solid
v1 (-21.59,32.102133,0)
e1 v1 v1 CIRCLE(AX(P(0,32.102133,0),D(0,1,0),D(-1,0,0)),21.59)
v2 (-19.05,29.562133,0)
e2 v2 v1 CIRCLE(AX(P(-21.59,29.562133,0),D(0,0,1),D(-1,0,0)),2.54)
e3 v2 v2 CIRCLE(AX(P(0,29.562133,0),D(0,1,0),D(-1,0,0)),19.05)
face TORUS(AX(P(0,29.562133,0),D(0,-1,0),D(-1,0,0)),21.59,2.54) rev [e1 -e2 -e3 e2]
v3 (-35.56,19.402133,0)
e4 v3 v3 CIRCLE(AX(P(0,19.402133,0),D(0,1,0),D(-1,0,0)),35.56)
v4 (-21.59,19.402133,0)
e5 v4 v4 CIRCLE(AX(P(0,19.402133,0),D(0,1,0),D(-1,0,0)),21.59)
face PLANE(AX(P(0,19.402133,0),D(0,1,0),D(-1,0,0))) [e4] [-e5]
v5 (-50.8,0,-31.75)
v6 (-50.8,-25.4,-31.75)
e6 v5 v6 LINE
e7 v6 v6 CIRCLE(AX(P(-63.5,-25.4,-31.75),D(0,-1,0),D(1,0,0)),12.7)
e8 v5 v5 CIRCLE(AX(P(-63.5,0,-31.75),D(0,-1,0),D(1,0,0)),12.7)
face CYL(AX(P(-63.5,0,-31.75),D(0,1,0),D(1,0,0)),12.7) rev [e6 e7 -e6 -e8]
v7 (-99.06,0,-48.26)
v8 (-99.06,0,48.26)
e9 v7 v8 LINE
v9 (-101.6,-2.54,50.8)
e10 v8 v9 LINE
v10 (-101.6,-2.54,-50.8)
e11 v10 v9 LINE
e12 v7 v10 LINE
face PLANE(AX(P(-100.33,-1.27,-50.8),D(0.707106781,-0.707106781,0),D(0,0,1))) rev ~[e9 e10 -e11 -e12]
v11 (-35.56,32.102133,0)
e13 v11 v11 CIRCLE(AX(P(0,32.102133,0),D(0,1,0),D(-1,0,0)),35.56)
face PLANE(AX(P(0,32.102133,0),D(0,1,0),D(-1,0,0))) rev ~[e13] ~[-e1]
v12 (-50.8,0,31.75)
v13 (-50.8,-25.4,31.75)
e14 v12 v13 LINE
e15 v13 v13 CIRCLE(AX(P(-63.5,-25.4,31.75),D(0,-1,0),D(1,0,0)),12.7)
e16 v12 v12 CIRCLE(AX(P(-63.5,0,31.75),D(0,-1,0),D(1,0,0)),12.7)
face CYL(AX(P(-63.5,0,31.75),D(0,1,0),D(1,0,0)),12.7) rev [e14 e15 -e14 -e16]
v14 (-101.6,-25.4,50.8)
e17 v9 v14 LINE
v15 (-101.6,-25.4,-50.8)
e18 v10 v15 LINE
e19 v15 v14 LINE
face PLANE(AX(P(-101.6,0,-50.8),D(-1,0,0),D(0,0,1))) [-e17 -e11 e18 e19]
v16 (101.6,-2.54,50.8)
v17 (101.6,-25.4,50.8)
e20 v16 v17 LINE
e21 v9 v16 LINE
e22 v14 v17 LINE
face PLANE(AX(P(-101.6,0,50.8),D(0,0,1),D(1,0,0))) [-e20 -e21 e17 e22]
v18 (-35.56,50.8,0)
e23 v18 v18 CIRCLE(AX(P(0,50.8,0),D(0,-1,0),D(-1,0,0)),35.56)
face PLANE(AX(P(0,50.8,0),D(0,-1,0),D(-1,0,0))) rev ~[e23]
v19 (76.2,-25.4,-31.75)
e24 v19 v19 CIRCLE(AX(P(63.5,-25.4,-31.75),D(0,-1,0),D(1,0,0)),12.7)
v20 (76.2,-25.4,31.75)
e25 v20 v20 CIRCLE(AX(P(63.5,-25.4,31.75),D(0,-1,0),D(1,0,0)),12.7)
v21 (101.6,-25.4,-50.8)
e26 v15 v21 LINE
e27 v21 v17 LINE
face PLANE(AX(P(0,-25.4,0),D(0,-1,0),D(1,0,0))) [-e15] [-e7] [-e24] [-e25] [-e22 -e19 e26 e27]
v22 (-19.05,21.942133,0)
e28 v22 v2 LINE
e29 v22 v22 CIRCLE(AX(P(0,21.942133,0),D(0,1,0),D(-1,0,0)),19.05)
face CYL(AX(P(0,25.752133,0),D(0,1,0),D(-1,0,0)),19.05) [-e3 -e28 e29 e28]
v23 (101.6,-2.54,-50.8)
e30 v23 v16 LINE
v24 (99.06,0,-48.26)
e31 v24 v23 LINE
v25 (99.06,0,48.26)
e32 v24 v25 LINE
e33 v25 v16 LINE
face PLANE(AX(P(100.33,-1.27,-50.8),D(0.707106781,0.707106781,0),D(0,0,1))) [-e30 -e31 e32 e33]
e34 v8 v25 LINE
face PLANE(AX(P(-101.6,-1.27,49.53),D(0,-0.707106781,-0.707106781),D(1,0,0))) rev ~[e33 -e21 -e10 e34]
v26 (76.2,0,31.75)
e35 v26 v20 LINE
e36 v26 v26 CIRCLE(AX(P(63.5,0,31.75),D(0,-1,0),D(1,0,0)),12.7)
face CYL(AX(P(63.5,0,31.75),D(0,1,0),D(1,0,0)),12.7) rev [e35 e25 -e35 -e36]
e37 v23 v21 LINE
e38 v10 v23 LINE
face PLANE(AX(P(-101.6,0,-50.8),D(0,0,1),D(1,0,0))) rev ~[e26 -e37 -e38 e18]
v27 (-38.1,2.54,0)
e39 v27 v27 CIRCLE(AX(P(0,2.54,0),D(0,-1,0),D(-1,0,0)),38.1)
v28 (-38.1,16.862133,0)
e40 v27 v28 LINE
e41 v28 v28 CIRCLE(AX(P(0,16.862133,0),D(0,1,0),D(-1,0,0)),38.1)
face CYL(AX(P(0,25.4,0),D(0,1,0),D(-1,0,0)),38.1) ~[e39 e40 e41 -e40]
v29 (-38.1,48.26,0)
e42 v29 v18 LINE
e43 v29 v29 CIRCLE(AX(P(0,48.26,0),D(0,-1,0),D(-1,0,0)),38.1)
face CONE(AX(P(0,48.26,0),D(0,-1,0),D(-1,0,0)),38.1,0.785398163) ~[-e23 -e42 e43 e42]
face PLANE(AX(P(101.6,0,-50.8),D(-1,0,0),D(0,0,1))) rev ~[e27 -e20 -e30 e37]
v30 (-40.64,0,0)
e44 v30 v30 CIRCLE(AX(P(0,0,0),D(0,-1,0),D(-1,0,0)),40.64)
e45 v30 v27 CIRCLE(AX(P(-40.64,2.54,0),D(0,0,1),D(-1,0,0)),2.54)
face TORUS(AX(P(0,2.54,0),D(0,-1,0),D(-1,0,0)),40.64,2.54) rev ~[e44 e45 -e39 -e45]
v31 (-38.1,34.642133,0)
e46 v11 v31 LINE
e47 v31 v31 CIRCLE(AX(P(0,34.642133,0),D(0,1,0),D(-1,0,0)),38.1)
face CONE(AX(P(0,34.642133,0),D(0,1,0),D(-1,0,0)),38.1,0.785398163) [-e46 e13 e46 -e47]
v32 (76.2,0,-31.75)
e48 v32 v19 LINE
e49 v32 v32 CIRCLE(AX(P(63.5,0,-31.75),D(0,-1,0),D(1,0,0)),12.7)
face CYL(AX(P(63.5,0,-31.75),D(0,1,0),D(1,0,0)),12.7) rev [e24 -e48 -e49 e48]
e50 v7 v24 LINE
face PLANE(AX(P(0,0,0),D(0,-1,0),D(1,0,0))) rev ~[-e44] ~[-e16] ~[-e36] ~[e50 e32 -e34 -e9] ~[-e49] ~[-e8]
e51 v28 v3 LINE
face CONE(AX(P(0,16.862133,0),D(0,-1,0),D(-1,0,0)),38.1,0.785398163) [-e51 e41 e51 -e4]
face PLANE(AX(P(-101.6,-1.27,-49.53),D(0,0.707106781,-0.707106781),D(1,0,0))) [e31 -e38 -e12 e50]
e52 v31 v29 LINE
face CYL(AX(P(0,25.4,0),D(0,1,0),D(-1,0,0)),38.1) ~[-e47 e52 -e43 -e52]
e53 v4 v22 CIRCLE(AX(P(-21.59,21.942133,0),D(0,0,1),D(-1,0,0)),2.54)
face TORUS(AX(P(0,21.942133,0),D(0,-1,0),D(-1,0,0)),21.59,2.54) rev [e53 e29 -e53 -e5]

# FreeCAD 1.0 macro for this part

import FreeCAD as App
import Part
import Sketcher
from FreeCAD import Vector
Q = App.Units.Quantity


def edges_at(feature, points):
    """Names of the edges that pass closest to the given points."""
    edges = feature.Shape.Edges
    near = lambda p: min(range(len(edges)), key=lambda i: edges[i].distToShape(Part.Vertex(*p))[0])
    return sorted({f"Edge{near(p) + 1}" for p in points})


def add_polygon(sketch, points):
    """Adds a closed chain of lines whose ends are joined by coincident constraints."""
    first, n = sketch.GeometryCount, len(points)
    for a, b in zip(points, points[1:] + points[:1]):
        sketch.addGeometry(Part.LineSegment(App.Vector(*a, 0), App.Vector(*b, 0)), False)
    for i in range(n):
        sketch.addConstraint(Sketcher.Constraint("Coincident", first + i, 2, first + (i + 1) % n, 1))

doc = App.newDocument("Part")
body = doc.addObject("PartDesign::Body", "Body")

# Sketch on XZ plane
sketch1 = body.newObject("Sketcher::SketchObject", "Sketch")
sketch1.AttachmentSupport = (doc.getObject("XZ_Plane"), [""])
sketch1.MapMode = "FlatFace"
add_polygon(sketch1, [(-102, 51), (-102, -51), (102, -51), (102, 51)])  # lines 0-3
sketch1.addConstraint([
    Sketcher.Constraint("Vertical", 0),
    Sketcher.Constraint("Horizontal", 1),
    Sketcher.Constraint("Vertical", 2),
    Sketcher.Constraint("Horizontal", 3),
    Sketcher.Constraint("Symmetric", 0, 2, 2, 2, -1, 1),
    Sketcher.Constraint("DistanceX", 1, 1, 1, 2, Q("8 in")),
    Sketcher.Constraint("DistanceY", 0, 2, 0, 1, Q("4 in")),
])
pad1 = body.newObject("PartDesign::Pad", "Pad")
pad1.Profile = sketch1
pad1.Length = Q("1 in")

# Sketch on XZ plane
sketch2 = body.newObject("Sketcher::SketchObject", "Sketch001")
sketch2.AttachmentSupport = (doc.getObject("XZ_Plane"), [""])
sketch2.MapMode = "FlatFace"
sketch2.addGeometry([
    Part.Circle(Vector(-64, 32, 0), Vector(0, 0, 1), 13),
    Part.Circle(Vector(-64, -32, 0), Vector(0, 0, 1), 13),
    Part.Circle(Vector(64, 32, 0), Vector(0, 0, 1), 13),
    Part.Circle(Vector(64, -32, 0), Vector(0, 0, 1), 13),
], False)
sketch2.addConstraint([
    Sketcher.Constraint("Equal", 0, 1),
    Sketcher.Constraint("Equal", 1, 2),
    Sketcher.Constraint("Equal", 2, 3),
    Sketcher.Constraint("Symmetric", 1, 3, 2, 3, -1, 1),
    Sketcher.Constraint("Symmetric", 0, 3, 3, 3, -1, 1),
    Sketcher.Constraint("Symmetric", 0, 3, 2, 3, -2),
    Sketcher.Constraint("Diameter", 0, Q("1 in")),
    Sketcher.Constraint("DistanceX", 0, 3, 2, 3, Q("5 in")),
    Sketcher.Constraint("DistanceY", 1, 3, 0, 3, Q("2.5 in")),
])
pocket1 = body.newObject("PartDesign::Pocket", "Pocket")
pocket1.Profile = sketch2
pocket1.Length = Q("1 in")
pocket1.Reversed = True

# Sketch on XY plane
sketch3 = body.newObject("Sketcher::SketchObject", "Sketch002")
sketch3.AttachmentSupport = (doc.getObject("XY_Plane"), [""])
sketch3.MapMode = "FlatFace"
add_polygon(sketch3, [(-38, 51), (-38, 0), (0, 0), (0, 51)])  # lines 0-3
sketch3.addConstraint([
    Sketcher.Constraint("Vertical", 0),
    Sketcher.Constraint("Horizontal", 1),
    Sketcher.Constraint("Vertical", 2),
    Sketcher.Constraint("Horizontal", 3),
    Sketcher.Constraint("Coincident", 1, 2, -1, 1),
    Sketcher.Constraint("DistanceY", 0, 2, 0, 1, Q("2 in")),
    Sketcher.Constraint("DistanceX", 1, 1, 1, 2, Q("1.5 in")),
])
revolution = body.newObject("PartDesign::Revolution", "Revolution")
revolution.Profile = sketch3
revolution.ReferenceAxis = (sketch3, ["V_Axis"])
revolution.Angle = 360

# Sketch on XY plane
sketch4 = body.newObject("Sketcher::SketchObject", "Sketch003")
sketch4.AttachmentSupport = (doc.getObject("XY_Plane"), [""])
sketch4.MapMode = "FlatFace"
add_polygon(sketch4, [(-44, 32), (-44, 19), (-19, 19), (-19, 32)])  # lines 0-3
sketch4.addConstraint([
    Sketcher.Constraint("Vertical", 0),
    Sketcher.Constraint("Horizontal", 1),
    Sketcher.Constraint("Vertical", 2),
    Sketcher.Constraint("Horizontal", 3),
    Sketcher.Constraint("DistanceX", 1, 1, 1, 2, Q("1 in")),
    Sketcher.Constraint("DistanceY", 0, 2, 0, 1, Q("0.5 in")),
    Sketcher.Constraint("DistanceX", 0, 2, -1, 1, Q("1.75 in")),
    Sketcher.Constraint("DistanceY", -1, 1, 0, 2, Q("19.402133 mm")),
])
groove = body.newObject("PartDesign::Groove", "Groove")
groove.Profile = sketch4
groove.ReferenceAxis = (sketch4, ["V_Axis"])
groove.Angle = 360
doc.recompute()

fillet = body.newObject("PartDesign::Fillet", "Fillet")
fillet.Base = (groove, edges_at(groove, [(38.1, 0, 0), (19.05, 19.402, 0), (19.05, 32.102, 0)]))
fillet.Radius = Q("0.1 in")
doc.recompute()

chamfer = body.newObject("PartDesign::Chamfer", "Chamfer")
chamfer.Base = (fillet, edges_at(fillet, [
    (38.1, 50.8, 0),
    (38.1, 32.102, 0),
    (38.1, 19.402, 0),
    (-101.6, 0, 0),
    (0, 0, -50.8),
    (0, 0, 50.8),
    (101.6, 0, 0),
]))
chamfer.Size = Q("0.1 in")

doc.recompute()
